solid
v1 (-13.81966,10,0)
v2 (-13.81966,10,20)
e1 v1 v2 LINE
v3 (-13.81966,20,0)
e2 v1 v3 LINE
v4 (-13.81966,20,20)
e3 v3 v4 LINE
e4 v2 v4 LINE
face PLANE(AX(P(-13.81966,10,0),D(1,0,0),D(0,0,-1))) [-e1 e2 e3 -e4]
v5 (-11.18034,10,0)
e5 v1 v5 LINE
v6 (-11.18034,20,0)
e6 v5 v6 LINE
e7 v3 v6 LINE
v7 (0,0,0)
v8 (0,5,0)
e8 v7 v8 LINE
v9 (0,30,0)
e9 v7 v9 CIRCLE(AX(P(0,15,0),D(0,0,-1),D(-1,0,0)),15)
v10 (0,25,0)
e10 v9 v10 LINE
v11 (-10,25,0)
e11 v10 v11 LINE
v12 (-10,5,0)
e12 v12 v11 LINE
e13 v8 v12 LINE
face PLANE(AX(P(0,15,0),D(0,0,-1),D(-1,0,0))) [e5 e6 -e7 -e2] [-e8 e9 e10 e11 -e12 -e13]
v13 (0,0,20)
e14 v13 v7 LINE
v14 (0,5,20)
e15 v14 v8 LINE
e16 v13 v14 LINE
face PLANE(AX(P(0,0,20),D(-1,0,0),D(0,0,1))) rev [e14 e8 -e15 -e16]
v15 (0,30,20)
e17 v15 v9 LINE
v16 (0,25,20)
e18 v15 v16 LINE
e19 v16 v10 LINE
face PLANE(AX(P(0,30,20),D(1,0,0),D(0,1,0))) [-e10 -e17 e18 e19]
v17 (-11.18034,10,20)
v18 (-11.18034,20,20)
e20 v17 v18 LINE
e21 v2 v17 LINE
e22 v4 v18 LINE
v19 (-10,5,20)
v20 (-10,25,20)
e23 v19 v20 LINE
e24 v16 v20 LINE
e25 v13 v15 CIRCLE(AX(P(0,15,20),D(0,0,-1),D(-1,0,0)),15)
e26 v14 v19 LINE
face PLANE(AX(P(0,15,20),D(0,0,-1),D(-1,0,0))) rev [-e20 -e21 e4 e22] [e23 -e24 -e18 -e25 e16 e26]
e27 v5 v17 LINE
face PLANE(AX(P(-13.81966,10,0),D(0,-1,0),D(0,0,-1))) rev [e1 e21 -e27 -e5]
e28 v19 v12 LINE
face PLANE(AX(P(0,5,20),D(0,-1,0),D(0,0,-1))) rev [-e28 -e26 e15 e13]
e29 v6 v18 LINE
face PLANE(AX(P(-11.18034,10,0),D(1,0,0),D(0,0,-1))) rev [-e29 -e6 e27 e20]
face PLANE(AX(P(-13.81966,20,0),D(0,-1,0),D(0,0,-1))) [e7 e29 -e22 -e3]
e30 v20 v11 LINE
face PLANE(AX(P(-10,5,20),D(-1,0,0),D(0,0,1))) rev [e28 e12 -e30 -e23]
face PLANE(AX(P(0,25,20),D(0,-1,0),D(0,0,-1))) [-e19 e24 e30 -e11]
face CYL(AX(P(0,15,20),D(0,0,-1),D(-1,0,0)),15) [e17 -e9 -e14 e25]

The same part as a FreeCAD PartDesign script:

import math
import FreeCAD as App
import Part
import Sketcher
Q = App.Units.Quantity

doc = App.newDocument("Part")
body = doc.addObject("PartDesign::Body", "Body")

# Sketch on XY plane
sketch1 = doc.addObject("Sketcher::SketchObject", "Sketch")
body.addObject(sketch1)
sketch1.AttachmentSupport = (doc.XY_Plane, [""])
sketch1.MapMode = "FlatFace"
sketch1.addGeometry([
    Part.LineSegment(App.Vector(0, 0, 0), App.Vector(0, 5, 0)),  # 0
    Part.LineSegment(App.Vector(0, 5, 0), App.Vector(-10, 5, 0)),  # 1
    Part.LineSegment(App.Vector(-10, 5, 0), App.Vector(-10, 25, 0)),  # 2
    Part.LineSegment(App.Vector(-10, 25, 0), App.Vector(0, 25, 0)),  # 3
    Part.LineSegment(App.Vector(0, 25, 0), App.Vector(0, 30, 0)),  # 4
    Part.ArcOfCircle(Part.Circle(App.Vector(0, 15, 0), App.Vector(0, 0, 1), 15), math.radians(90), math.radians(270)),  # 5
], False)
sketch1.addConstraint([
    Sketcher.Constraint("Coincident", 0, 2, 1, 1),
    Sketcher.Constraint("Coincident", 1, 2, 2, 1),
    Sketcher.Constraint("Coincident", 2, 2, 3, 1),
    Sketcher.Constraint("Coincident", 3, 2, 4, 1),
    Sketcher.Constraint("Coincident", 4, 2, 5, 1),
    Sketcher.Constraint("Coincident", 5, 2, 0, 1),
    Sketcher.Constraint("Vertical", 0),
    Sketcher.Constraint("Horizontal", 1),
    Sketcher.Constraint("Vertical", 2),
    Sketcher.Constraint("Horizontal", 3),
    Sketcher.Constraint("Vertical", 4),
    Sketcher.Constraint("Coincident", 5, 2, -1, 1),
    Sketcher.Constraint("PointOnObject", 5, 3, -2),
    Sketcher.Constraint("PointOnObject", 3, 2, -2),
    Sketcher.Constraint("Equal", 0, 4),
    Sketcher.Constraint("Radius", 5, Q("15 mm")),
    Sketcher.Constraint("DistanceX", 1, 2, 1, 1, Q("10 mm")),
    Sketcher.Constraint("DistanceY", 0, 1, 0, 2, Q("5 mm")),
])
pad1 = doc.addObject("PartDesign::Pad", "Pad")
body.addObject(pad1)
pad1.Profile = sketch1
pad1.Length = 20

# Sketch on XY plane
sketch2 = doc.addObject("Sketcher::SketchObject", "Sketch001")
body.addObject(sketch2)
sketch2.AttachmentSupport = (doc.XY_Plane, [""])
sketch2.MapMode = "FlatFace"
sketch2.AttachmentOffset = App.Placement(App.Vector(0, 0, 20), App.Rotation())
sketch2.addGeometry([
    Part.LineSegment(App.Vector(-13.8, 20, 0), App.Vector(-13.8, 10, 0)),
    Part.LineSegment(App.Vector(-13.8, 10, 0), App.Vector(-11.2, 10, 0)),
    Part.LineSegment(App.Vector(-11.2, 10, 0), App.Vector(-11.2, 20, 0)),
    Part.LineSegment(App.Vector(-11.2, 20, 0), App.Vector(-13.8, 20, 0)),
], False)
sketch2.addConstraint([
    Sketcher.Constraint("Coincident", 0, 2, 1, 1),
    Sketcher.Constraint("Coincident", 1, 2, 2, 1),
    Sketcher.Constraint("Coincident", 2, 2, 3, 1),
    Sketcher.Constraint("Coincident", 3, 2, 0, 1),
    Sketcher.Constraint("Vertical", 0),
    Sketcher.Constraint("Horizontal", 1),
    Sketcher.Constraint("Vertical", 2),
    Sketcher.Constraint("Horizontal", 3),
    Sketcher.Constraint("DistanceY", 0, 2, 0, 1, Q("10 mm")),
    Sketcher.Constraint("DistanceY", -1, 1, 0, 2, Q("10 mm")),
    Sketcher.Constraint("DistanceX", 1, 1, 1, 2, Q("2.63932 mm")),
    Sketcher.Constraint("DistanceX", 0, 2, -1, 1, Q("13.81966 mm")),
])
pocket1 = doc.addObject("PartDesign::Pocket", "Pocket")
body.addObject(pocket1)
pocket1.Profile = sketch2
pocket1.Length = 20

doc.recompute()
